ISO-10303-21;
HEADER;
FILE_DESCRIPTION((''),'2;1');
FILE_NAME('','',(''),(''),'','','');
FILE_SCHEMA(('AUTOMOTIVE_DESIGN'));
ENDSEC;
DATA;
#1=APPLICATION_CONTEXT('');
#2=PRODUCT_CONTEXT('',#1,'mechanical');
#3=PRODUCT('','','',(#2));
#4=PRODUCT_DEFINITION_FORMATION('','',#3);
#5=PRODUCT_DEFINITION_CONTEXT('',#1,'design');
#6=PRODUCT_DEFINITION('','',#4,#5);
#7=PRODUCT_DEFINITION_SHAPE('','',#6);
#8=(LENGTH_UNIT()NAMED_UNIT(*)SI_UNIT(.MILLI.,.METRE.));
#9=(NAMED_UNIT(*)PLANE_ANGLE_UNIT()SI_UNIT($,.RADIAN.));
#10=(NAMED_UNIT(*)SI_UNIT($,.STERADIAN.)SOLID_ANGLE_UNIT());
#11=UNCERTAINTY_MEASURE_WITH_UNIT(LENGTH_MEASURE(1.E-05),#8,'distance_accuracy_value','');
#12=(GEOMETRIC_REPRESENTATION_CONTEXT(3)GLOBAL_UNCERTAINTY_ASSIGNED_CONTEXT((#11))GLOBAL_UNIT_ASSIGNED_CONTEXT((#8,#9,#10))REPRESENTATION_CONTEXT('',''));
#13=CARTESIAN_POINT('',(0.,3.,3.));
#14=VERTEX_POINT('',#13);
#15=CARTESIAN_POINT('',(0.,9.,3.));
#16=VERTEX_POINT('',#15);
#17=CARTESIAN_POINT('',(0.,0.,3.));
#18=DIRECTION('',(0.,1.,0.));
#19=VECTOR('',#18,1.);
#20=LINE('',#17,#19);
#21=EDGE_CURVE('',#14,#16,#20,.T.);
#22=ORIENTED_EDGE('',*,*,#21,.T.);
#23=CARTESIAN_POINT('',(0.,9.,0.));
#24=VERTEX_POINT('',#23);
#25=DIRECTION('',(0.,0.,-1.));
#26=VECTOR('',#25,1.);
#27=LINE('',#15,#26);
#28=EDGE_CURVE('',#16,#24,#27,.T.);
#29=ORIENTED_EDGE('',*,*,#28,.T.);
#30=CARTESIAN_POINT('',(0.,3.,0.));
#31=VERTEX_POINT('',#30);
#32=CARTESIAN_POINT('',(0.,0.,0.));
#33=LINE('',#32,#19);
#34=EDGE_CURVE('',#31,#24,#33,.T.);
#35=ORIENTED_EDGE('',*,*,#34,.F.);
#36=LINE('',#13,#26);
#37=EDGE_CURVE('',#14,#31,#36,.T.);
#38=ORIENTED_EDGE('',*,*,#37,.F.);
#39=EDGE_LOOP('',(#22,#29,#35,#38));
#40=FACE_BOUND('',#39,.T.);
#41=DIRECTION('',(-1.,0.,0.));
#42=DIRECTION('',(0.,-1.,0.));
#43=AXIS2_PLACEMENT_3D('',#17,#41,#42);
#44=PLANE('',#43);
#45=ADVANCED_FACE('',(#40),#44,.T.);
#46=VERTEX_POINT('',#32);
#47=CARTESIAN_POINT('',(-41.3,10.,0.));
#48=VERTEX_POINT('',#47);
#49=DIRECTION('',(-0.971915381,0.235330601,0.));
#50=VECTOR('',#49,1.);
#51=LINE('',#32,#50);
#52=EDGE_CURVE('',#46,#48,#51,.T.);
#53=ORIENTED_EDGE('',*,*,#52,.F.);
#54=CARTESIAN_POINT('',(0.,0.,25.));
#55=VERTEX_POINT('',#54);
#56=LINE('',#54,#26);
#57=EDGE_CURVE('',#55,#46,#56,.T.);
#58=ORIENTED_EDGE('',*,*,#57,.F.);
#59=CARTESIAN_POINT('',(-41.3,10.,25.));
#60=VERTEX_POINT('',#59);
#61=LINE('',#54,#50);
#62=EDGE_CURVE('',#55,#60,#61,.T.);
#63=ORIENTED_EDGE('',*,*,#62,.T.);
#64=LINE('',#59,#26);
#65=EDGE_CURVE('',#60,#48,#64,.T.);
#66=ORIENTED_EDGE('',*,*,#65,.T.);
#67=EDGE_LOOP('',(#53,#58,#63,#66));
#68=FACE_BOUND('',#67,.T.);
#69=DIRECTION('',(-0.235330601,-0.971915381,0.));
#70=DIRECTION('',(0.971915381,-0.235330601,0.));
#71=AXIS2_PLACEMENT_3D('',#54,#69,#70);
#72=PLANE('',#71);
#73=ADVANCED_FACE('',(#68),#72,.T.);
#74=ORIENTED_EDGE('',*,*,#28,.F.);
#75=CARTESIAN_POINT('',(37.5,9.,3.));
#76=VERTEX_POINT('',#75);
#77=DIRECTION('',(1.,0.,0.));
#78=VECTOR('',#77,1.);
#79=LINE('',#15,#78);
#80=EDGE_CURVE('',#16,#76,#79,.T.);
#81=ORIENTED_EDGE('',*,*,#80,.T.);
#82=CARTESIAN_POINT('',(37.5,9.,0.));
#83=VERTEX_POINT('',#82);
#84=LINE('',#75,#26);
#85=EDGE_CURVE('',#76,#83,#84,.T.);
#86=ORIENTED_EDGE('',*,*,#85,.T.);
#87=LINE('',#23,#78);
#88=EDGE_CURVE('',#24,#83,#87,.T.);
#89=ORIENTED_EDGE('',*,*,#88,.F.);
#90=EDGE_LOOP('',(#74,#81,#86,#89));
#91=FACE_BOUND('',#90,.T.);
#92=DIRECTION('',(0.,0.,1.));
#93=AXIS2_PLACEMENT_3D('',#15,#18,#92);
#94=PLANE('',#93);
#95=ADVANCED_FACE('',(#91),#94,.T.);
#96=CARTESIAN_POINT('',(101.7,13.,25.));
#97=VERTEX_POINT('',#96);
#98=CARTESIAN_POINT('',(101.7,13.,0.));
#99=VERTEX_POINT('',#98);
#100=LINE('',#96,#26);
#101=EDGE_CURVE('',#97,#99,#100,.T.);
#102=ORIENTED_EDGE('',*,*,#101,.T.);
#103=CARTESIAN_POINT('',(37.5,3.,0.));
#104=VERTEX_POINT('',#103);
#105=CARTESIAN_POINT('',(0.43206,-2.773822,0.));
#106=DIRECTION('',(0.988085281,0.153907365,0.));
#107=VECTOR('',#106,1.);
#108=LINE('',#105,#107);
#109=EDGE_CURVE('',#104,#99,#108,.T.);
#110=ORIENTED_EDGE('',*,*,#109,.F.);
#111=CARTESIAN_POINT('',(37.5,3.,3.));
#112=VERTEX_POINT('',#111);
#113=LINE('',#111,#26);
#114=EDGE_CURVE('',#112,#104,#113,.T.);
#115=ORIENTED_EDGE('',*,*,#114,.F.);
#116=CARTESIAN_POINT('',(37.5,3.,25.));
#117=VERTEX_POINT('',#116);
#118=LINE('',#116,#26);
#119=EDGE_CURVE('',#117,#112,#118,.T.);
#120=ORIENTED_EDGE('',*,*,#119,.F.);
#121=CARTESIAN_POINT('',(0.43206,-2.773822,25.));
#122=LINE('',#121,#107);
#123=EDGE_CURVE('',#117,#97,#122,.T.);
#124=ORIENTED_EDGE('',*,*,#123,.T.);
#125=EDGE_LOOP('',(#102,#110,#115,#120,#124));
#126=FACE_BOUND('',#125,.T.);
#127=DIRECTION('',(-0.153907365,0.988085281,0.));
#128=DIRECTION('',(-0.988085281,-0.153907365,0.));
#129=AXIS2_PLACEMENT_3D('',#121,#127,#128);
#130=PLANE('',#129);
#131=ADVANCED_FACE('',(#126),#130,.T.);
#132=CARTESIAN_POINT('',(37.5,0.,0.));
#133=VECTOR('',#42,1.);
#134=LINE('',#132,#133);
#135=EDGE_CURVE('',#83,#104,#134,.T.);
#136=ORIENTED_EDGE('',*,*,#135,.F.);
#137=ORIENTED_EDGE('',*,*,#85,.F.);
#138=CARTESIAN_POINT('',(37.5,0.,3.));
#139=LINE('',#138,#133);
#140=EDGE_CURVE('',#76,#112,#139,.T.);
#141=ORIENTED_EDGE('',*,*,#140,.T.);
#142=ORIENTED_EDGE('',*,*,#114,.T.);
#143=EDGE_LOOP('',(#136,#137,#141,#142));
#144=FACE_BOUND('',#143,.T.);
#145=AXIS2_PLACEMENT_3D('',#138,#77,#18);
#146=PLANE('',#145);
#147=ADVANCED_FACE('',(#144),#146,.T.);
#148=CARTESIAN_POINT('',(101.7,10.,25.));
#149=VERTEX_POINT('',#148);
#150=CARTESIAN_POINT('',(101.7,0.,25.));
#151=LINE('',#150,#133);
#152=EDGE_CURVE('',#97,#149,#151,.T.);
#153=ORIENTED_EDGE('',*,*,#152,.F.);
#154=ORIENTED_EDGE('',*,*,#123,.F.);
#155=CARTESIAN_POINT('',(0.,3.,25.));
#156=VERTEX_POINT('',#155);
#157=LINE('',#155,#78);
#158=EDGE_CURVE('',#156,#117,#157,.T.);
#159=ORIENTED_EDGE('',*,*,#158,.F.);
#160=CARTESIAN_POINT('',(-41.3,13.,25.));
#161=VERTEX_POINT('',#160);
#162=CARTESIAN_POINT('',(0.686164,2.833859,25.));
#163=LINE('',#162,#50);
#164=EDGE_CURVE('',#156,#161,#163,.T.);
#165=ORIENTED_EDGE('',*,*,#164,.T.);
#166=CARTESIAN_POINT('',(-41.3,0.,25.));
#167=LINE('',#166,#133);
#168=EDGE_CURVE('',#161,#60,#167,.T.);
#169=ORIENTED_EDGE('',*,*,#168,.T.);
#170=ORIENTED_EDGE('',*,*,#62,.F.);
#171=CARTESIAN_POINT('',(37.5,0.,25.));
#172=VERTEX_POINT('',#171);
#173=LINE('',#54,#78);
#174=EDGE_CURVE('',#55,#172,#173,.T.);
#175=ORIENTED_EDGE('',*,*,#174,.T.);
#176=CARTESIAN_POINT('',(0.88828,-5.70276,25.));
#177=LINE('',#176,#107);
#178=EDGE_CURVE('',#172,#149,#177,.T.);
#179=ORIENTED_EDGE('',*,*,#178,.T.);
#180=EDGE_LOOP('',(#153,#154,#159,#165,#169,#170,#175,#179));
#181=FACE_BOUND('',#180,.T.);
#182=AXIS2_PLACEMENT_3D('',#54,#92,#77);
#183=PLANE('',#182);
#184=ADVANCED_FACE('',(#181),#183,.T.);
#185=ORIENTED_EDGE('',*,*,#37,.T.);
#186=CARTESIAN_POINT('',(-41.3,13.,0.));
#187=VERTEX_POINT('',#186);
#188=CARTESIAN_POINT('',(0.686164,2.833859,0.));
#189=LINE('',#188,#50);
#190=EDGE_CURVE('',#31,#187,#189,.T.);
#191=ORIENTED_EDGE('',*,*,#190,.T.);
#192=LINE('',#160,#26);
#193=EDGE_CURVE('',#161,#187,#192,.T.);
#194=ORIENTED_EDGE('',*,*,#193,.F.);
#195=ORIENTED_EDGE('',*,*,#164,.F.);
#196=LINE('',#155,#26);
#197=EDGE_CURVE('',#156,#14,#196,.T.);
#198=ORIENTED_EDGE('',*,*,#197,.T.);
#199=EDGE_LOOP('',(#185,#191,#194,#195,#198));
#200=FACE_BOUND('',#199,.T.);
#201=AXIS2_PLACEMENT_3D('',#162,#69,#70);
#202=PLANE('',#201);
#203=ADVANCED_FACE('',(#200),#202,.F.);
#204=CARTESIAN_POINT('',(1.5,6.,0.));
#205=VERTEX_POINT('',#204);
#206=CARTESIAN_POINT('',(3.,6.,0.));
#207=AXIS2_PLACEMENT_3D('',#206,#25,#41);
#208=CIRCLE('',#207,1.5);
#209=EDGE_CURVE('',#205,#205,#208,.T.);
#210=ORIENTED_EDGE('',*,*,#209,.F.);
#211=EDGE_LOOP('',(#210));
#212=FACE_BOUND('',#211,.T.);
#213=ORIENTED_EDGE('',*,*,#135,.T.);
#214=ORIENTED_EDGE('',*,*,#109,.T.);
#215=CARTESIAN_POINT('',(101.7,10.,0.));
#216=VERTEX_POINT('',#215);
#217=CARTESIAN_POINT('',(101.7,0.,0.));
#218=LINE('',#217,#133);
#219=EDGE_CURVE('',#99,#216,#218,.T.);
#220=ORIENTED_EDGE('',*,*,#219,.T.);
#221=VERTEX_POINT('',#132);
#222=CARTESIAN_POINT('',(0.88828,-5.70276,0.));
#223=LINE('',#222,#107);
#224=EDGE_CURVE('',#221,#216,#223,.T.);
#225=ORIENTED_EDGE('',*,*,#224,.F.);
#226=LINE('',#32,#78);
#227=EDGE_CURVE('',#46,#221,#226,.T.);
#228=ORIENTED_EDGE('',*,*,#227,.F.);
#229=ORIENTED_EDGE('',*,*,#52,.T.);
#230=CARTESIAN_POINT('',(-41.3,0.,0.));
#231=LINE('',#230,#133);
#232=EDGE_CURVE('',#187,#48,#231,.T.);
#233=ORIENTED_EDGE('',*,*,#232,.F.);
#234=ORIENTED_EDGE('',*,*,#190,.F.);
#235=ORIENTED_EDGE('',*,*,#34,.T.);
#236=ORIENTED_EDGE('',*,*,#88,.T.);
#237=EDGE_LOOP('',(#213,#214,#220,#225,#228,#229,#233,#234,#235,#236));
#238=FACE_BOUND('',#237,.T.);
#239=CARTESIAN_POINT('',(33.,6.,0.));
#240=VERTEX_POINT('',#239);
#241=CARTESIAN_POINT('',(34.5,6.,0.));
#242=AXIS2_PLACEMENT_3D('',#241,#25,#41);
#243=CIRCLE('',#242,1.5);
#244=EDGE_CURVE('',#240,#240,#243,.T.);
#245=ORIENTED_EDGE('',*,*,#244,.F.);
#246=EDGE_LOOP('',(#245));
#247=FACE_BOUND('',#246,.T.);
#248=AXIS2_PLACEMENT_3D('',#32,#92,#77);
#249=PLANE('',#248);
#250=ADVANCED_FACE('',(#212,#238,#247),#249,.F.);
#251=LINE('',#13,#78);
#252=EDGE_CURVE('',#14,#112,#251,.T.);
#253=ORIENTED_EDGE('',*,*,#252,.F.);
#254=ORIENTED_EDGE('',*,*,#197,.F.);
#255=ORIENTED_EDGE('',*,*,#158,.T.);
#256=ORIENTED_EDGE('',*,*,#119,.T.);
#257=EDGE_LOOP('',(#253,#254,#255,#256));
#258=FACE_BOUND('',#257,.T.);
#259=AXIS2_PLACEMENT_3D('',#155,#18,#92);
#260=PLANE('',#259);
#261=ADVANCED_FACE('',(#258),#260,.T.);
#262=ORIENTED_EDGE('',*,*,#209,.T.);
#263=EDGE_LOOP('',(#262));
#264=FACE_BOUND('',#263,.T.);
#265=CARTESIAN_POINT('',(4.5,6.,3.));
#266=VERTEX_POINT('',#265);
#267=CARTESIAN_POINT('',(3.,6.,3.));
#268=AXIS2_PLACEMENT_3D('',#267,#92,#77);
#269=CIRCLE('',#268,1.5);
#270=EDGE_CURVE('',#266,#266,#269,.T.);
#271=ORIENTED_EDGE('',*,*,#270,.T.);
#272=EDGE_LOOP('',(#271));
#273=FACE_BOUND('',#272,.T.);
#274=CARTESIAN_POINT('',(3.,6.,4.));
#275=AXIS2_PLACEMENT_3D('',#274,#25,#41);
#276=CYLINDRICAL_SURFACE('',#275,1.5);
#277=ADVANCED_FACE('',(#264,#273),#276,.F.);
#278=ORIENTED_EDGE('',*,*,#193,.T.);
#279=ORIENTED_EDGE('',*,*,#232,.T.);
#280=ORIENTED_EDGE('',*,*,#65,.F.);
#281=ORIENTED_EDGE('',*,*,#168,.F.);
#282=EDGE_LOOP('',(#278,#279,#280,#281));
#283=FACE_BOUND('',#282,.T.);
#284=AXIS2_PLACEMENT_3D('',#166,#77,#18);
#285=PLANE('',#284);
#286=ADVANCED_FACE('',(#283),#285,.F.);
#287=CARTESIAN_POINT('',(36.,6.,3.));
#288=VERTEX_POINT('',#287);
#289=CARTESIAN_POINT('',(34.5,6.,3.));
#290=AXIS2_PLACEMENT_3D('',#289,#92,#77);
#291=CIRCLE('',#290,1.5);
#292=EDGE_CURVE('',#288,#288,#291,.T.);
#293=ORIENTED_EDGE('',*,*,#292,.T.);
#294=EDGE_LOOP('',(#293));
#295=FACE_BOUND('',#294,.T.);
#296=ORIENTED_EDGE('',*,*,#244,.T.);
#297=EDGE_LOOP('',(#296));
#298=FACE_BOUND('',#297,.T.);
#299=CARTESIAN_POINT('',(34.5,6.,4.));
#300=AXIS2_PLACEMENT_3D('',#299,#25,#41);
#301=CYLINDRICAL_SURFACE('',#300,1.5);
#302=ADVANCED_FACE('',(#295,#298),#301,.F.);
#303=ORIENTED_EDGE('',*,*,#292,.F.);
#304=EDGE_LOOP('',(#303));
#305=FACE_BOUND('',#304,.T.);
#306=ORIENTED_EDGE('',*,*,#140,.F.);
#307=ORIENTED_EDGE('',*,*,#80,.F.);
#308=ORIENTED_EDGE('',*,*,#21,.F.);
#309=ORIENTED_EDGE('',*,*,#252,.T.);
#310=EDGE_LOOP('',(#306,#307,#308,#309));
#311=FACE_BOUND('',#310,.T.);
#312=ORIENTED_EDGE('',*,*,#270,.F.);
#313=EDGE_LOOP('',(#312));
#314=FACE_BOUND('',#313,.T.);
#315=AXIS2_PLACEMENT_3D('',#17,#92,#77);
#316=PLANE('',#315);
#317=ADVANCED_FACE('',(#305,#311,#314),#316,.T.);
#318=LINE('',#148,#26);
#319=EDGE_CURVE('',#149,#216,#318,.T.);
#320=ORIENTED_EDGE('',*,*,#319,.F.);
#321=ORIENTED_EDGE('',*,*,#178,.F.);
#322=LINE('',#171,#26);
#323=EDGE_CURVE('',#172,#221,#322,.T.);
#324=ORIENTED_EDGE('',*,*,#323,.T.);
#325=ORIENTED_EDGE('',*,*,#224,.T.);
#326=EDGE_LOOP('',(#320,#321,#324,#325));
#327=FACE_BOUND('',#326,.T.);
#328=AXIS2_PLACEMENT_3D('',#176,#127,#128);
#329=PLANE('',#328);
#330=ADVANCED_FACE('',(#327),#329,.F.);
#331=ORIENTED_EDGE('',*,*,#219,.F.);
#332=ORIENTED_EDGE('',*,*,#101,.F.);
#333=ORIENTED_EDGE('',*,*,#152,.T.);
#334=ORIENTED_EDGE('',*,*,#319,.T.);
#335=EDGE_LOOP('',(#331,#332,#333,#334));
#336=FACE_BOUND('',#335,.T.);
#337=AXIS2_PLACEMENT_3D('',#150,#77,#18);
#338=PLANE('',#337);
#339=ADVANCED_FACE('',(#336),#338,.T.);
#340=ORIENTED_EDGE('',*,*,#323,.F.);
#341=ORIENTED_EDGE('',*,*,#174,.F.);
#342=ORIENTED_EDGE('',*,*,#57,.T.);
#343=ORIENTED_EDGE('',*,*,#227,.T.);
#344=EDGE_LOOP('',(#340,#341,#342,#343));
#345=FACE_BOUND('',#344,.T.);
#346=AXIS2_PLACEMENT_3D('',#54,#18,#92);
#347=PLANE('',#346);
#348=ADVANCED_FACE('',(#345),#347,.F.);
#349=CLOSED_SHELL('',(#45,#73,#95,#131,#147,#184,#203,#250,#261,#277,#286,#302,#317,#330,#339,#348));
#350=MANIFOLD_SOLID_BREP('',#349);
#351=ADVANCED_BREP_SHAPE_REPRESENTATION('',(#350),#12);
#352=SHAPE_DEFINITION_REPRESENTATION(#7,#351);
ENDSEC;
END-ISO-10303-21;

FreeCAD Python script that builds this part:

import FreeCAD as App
import Part
import Sketcher

V = App.Vector


def add_polygon(sketch, points):
    """Adds a closed chain of lines whose ends are joined by coincident constraints."""
    first, n = sketch.GeometryCount, len(points)
    for a, b in zip(points, points[1:] + points[:1]):
        sketch.addGeometry(Part.LineSegment(App.Vector(*a, 0), App.Vector(*b, 0)), False)
    for i in range(n):
        sketch.addConstraint(Sketcher.Constraint("Coincident", first + i, 2, first + (i + 1) % n, 1))

doc = App.newDocument("Part")
body = doc.addObject("PartDesign::Body", "Body")

# Sketch on XY plane
sketch1 = body.newObject("Sketcher::SketchObject", "Sketch")
sketch1.AttachmentSupport = (doc.getObject("XY_Plane"), [""])
sketch1.MapMode = "FlatFace"
add_polygon(sketch1, [(101.7, 10), (101.7, 13), (37.5, 3), (0, 3), (-41.3, 13), (-41.3, 10), (0, 0), (37.5, 0)])  # lines 0-7
sketch1.addConstraint([
    Sketcher.Constraint("Vertical", 0),
    Sketcher.Constraint("Horizontal", 2),
    Sketcher.Constraint("Vertical", 4),
    Sketcher.Constraint("Horizontal", 6),
    Sketcher.Constraint("Coincident", 5, 2, -1, 1),
    Sketcher.Constraint("PointOnObject", 2, 2, -2),
    Sketcher.Constraint("Parallel", 3, 5),
    Sketcher.Constraint("Parallel", 1, 7),
    Sketcher.Constraint("Horizontal", 0, 2, 3, 2),
    Sketcher.Constraint("Horizontal", 4, 2, 7, 2),
    Sketcher.Constraint("DistanceY", 0, 1, 0, 2, 3.0),
    Sketcher.Constraint("DistanceX", 2, 2, 2, 1, 37.5),
    Sketcher.Constraint("DistanceY", -1, 1, 0, 2, 13.0),
    Sketcher.Constraint("DistanceX", 3, 2, 0, 2, 143.0),
    Sketcher.Constraint("DistanceX", -1, 1, 0, 2, 101.7),
])
pad1 = body.newObject("PartDesign::Pad", "Pad")
pad1.Profile = sketch1
pad1.Length = 25

# Sketch on XY plane
sketch2 = body.newObject("Sketcher::SketchObject", "Sketch001")
sketch2.AttachmentSupport = (doc.getObject("XY_Plane"), [""])
sketch2.MapMode = "FlatFace"
add_polygon(sketch2, [(0, 9), (0, 3), (37.5, 3), (37.5, 9)])  # lines 0-3
sketch2.addConstraint([
    Sketcher.Constraint("Vertical", 0),
    Sketcher.Constraint("Horizontal", 1),
    Sketcher.Constraint("Vertical", 2),
    Sketcher.Constraint("Horizontal", 3),
    Sketcher.Constraint("PointOnObject", 0, 2, -2),
    Sketcher.Constraint("DistanceY", 0, 2, 0, 1, 6.0),
    Sketcher.Constraint("DistanceX", 1, 1, 1, 2, 37.5),
    Sketcher.Constraint("DistanceY", -1, 1, 0, 2, 3.0),
])
pad2 = body.newObject("PartDesign::Pad", "Pad001")
pad2.Profile = sketch2
pad2.Length = 3

# Sketch on XY plane
sketch3 = body.newObject("Sketcher::SketchObject", "Sketch002")
sketch3.AttachmentSupport = (doc.getObject("XY_Plane"), [""])
sketch3.MapMode = "FlatFace"
sketch3.addGeometry([
    Part.Circle(V(3, 6, 0), V(0, 0, 1), 1.5),
    Part.Circle(V(34.5, 6, 0), V(0, 0, 1), 1.5),
], False)
sketch3.addConstraint([
    Sketcher.Constraint("Equal", 0, 1),
    Sketcher.Constraint("Horizontal", 0, 3, 1, 3),
    Sketcher.Constraint("Diameter", 0, 3.0),
    Sketcher.Constraint("DistanceX", -1, 1, 0, 3, 3.0),
    Sketcher.Constraint("DistanceY", -1, 1, 0, 3, 6.0),
    Sketcher.Constraint("DistanceX", -1, 1, 1, 3, 34.5),
])
pocket1 = body.newObject("PartDesign::Pocket", "Pocket")
pocket1.Profile = sketch3
pocket1.Length = 4
pocket1.Reversed = True

doc.recompute()
